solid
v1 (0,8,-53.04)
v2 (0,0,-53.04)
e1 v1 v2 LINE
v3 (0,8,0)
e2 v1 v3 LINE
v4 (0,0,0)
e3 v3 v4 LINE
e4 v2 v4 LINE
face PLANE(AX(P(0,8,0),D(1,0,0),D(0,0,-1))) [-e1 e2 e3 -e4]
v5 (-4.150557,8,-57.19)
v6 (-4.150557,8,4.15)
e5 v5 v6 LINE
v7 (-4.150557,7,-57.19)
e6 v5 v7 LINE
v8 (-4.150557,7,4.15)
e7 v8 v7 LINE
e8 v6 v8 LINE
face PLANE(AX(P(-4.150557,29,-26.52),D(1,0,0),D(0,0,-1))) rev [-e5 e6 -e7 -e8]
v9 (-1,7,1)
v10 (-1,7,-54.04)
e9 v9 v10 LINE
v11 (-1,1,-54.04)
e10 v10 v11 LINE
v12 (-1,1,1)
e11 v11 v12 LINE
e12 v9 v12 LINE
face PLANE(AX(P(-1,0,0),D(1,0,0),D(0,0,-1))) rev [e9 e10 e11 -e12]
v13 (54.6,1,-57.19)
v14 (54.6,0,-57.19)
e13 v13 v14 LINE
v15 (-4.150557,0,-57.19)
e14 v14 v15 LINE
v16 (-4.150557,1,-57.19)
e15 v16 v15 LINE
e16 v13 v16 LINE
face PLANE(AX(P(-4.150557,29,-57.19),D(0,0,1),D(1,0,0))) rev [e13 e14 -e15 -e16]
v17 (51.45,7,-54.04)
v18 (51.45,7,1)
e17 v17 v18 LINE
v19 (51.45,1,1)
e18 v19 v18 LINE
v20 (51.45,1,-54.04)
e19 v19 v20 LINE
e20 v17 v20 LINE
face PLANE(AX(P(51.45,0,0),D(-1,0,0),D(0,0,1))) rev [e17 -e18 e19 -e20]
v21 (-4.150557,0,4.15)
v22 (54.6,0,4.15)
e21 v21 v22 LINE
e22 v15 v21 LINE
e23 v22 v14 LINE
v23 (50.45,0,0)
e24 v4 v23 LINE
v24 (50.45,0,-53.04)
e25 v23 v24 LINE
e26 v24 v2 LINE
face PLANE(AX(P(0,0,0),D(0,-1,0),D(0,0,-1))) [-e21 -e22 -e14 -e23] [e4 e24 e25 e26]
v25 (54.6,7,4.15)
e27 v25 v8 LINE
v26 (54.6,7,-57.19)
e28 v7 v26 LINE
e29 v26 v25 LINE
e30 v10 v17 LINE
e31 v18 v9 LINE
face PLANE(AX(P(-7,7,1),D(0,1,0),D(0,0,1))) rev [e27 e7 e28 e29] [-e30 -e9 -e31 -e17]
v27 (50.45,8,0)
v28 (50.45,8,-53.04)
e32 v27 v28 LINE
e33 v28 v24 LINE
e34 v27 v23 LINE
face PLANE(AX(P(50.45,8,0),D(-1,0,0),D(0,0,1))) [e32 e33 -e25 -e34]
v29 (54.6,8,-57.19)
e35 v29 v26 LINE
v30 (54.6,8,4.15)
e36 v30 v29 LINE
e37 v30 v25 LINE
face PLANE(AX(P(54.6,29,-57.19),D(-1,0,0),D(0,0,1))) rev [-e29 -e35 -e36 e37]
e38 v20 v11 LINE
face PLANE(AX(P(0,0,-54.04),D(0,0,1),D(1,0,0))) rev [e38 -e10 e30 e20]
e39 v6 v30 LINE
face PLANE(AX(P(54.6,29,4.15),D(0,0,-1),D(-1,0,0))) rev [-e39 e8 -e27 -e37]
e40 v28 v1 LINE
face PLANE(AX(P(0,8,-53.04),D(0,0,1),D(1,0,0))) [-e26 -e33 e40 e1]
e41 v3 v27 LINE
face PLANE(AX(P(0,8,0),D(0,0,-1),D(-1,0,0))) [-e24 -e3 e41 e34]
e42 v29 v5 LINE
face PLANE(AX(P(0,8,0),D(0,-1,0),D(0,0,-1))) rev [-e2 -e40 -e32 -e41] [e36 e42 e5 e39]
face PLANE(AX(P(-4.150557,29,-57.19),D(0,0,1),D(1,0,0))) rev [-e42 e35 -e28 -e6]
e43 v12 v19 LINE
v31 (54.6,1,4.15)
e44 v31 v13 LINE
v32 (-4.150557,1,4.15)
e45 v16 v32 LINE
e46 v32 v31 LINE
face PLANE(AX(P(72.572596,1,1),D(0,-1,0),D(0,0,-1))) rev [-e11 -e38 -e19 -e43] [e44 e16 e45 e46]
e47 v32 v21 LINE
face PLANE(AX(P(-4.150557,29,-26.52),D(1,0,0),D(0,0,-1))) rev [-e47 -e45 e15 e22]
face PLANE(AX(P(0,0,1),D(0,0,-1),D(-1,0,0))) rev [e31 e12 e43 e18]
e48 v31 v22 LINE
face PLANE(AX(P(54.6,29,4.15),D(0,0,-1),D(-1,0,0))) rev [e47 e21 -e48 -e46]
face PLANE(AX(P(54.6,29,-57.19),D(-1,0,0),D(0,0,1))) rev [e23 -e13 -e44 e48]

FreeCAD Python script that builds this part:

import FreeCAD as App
import Part
import Sketcher
from FreeCAD import Vector
Q = App.Units.Quantity


def add_polygon(sketch, points):
    """Adds a closed chain of lines whose ends are joined by coincident constraints."""
    first, n = sketch.GeometryCount, len(points)
    for a, b in zip(points, points[1:] + points[:1]):
        sketch.addGeometry(Part.LineSegment(App.Vector(*a, 0), App.Vector(*b, 0)), False)
    for i in range(n):
        sketch.addConstraint(Sketcher.Constraint("Coincident", first + i, 2, first + (i + 1) % n, 1))

doc = App.newDocument("Part")
params = doc.addObject("Spreadsheet::Sheet", "Params")
for row, (alias, value) in enumerate([
    ("sketch1_width", "64.45 mm"),
    ("sketch1_height", "67.04 mm"),
    ("pad1_length", "8 mm"),
    ("sketch2_height", "6 mm"),
    ("pocket1_length", "6 mm"),
    ("sketch3_width", "6 mm"),
    ("pocket2_length", "6 mm"),
    ("sketch4_height", "6 mm"),
    ("pocket3_length", "6 mm"),
    ("sketch5_width", "6 mm"),
    ("pocket4_length", "6 mm"),
    ("sketch6_width", "64.45 mm"),
    ("sketch6_height", "67.04 mm"),
    ("sketch6_height2", "61.34 mm"),
], start=1):
    params.set(f"A{row}", alias)
    params.set(f"B{row}", "=" + value)
    params.setAlias(f"B{row}", alias)

body = doc.addObject("PartDesign::Body", "Body")

# Sketch on XZ plane
sketch1 = body.newObject("Sketcher::SketchObject", "Sketch")
sketch1.AttachmentSupport = (doc.getObject("XZ_Plane"), [""])
sketch1.MapMode = "FlatFace"
add_polygon(sketch1, [(57, -60), (-7, -60), (-7, 7), (57, 7)])  # lines 0-3
add_polygon(sketch1, [(0, 0), (0, -53), (50, -53), (50, 0)])  # lines 4-7
sketch1.addConstraint([
    Sketcher.Constraint("Horizontal", 0),
    Sketcher.Constraint("Vertical", 1),
    Sketcher.Constraint("Horizontal", 2),
    Sketcher.Constraint("Vertical", 3),
    Sketcher.Constraint("Vertical", 4),
    Sketcher.Constraint("Horizontal", 5),
    Sketcher.Constraint("Vertical", 6),
    Sketcher.Constraint("Horizontal", 7),
    Sketcher.Constraint("Coincident", 7, 2, -1, 1),
    Sketcher.Constraint("DistanceX", 0, 2, -1, 1, Q("7 mm")),
    Sketcher.Constraint("DistanceY", -1, 1, 1, 2, Q("7 mm")),
    Sketcher.Constraint("DistanceY", 0, 2, 4, 2, Q("7 mm")),
    Sketcher.Constraint("DistanceX", 5, 2, 3, 2, Q("7 mm")),
    Sketcher.Constraint("DistanceX", 0, 2, 0, 1, Q("64.45 mm")),
    Sketcher.Constraint("DistanceY", 1, 1, 1, 2, Q("67.04 mm")),
])
sketch1.setExpression("Constraints[21]", "Params.sketch1_width")
sketch1.setExpression("Constraints[22]", "Params.sketch1_height")
pad1 = body.newObject("PartDesign::Pad", "Pad")
pad1.Profile = sketch1
pad1.setExpression("Length", "Params.pad1_length")
pad1.Reversed = True

# Sketch on XY plane
sketch2 = body.newObject("Sketcher::SketchObject", "Sketch001")
sketch2.AttachmentSupport = (doc.getObject("XY_Plane"), [""])
sketch2.MapMode = "FlatFace"
sketch2.AttachmentOffset = App.Placement(Vector(0, 0, 7), App.Rotation())
add_polygon(sketch2, [(73, 7), (-15, 7), (-15, 1), (73, 1)])  # lines 0-3
sketch2.addConstraint([
    Sketcher.Constraint("Horizontal", 0),
    Sketcher.Constraint("Vertical", 1),
    Sketcher.Constraint("Horizontal", 2),
    Sketcher.Constraint("Vertical", 3),
    Sketcher.Constraint("DistanceY", 1, 2, 1, 1, Q("6 mm")),
    Sketcher.Constraint("DistanceY", -1, 1, 0, 2, Q("7 mm")),
    Sketcher.Constraint("DistanceX", 0, 2, 0, 1, Q("87.655675 mm")),
    Sketcher.Constraint("DistanceX", 0, 2, -1, 1, Q("15.083079 mm")),
])
sketch2.setExpression("Constraints[8]", "Params.sketch2_height")
pocket1 = body.newObject("PartDesign::Pocket", "Pocket")
pocket1.Profile = sketch2
pocket1.setExpression("Length", "Params.pocket1_length")

# Sketch on YZ plane
sketch3 = body.newObject("Sketcher::SketchObject", "Sketch002")
sketch3.AttachmentSupport = (doc.getObject("YZ_Plane"), [""])
sketch3.MapMode = "FlatFace"
sketch3.AttachmentOffset = App.Placement(Vector(0, 0, -7), App.Rotation())
add_polygon(sketch3, [(7, -62), (1, -62), (1, 11), (7, 11)])  # lines 0-3
sketch3.addConstraint([
    Sketcher.Constraint("Horizontal", 0),
    Sketcher.Constraint("Vertical", 1),
    Sketcher.Constraint("Horizontal", 2),
    Sketcher.Constraint("Vertical", 3),
    Sketcher.Constraint("DistanceX", 0, 2, 0, 1, Q("6 mm")),
    Sketcher.Constraint("DistanceX", -1, 1, 0, 2, Q("1 mm")),
    Sketcher.Constraint("DistanceY", 1, 1, 1, 2, Q("73.602599 mm")),
    Sketcher.Constraint("DistanceY", 0, 2, -1, 1, Q("62.487898 mm")),
])
sketch3.setExpression("Constraints[8]", "Params.sketch3_width")
pocket2 = body.newObject("PartDesign::Pocket", "Pocket001")
pocket2.Profile = sketch3
pocket2.setExpression("Length", "Params.pocket2_length")
pocket2.Reversed = True

# Sketch on XY plane
sketch4 = body.newObject("Sketcher::SketchObject", "Sketch003")
sketch4.AttachmentSupport = (doc.getObject("XY_Plane"), [""])
sketch4.MapMode = "FlatFace"
sketch4.AttachmentOffset = App.Placement(Vector(0, 0, -60.04), App.Rotation())
add_polygon(sketch4, [(64, 7), (64, 1), (-12, 1), (-12, 7)])  # lines 0-3
sketch4.addConstraint([
    Sketcher.Constraint("Vertical", 0),
    Sketcher.Constraint("Horizontal", 1),
    Sketcher.Constraint("Vertical", 2),
    Sketcher.Constraint("Horizontal", 3),
    Sketcher.Constraint("DistanceY", 0, 2, 0, 1, Q("6 mm")),
    Sketcher.Constraint("DistanceY", -1, 1, 0, 2, Q("1 mm")),
    Sketcher.Constraint("DistanceX", 1, 2, 1, 1, Q("75.527988 mm")),
    Sketcher.Constraint("DistanceX", -1, 1, 0, 2, Q("63.689958 mm")),
])
sketch4.setExpression("Constraints[8]", "Params.sketch4_height")
pocket3 = body.newObject("PartDesign::Pocket", "Pocket002")
pocket3.Profile = sketch4
pocket3.setExpression("Length", "Params.pocket3_length")
pocket3.Reversed = True

# Sketch on YZ plane
sketch5 = body.newObject("Sketcher::SketchObject", "Sketch004")
sketch5.AttachmentSupport = (doc.getObject("YZ_Plane"), [""])
sketch5.MapMode = "FlatFace"
sketch5.AttachmentOffset = App.Placement(Vector(0, 0, 57.45), App.Rotation())
add_polygon(sketch5, [(7, -62), (7, 9), (1, 9), (1, -62)])  # lines 0-3
sketch5.addConstraint([
    Sketcher.Constraint("Vertical", 0),
    Sketcher.Constraint("Horizontal", 1),
    Sketcher.Constraint("Vertical", 2),
    Sketcher.Constraint("Horizontal", 3),
    Sketcher.Constraint("DistanceX", 1, 2, 1, 1, Q("6 mm")),
    Sketcher.Constraint("DistanceX", -1, 1, 0, 2, Q("7 mm")),
    Sketcher.Constraint("DistanceY", 0, 1, 0, 2, Q("70.82639 mm")),
    Sketcher.Constraint("DistanceY", -1, 1, 0, 2, Q("8.754047 mm")),
])
sketch5.setExpression("Constraints[8]", "Params.sketch5_width")
pocket4 = body.newObject("PartDesign::Pocket", "Pocket003")
pocket4.Profile = sketch5
pocket4.setExpression("Length", "Params.pocket4_length")

# Sketch on XZ plane
sketch6 = body.newObject("Sketcher::SketchObject", "Sketch005")
sketch6.AttachmentSupport = (doc.getObject("XZ_Plane"), [""])
sketch6.MapMode = "FlatFace"
sketch6.AttachmentOffset = App.Placement(Vector(0, 0, -8), App.Rotation())
add_polygon(sketch6, [(-7, -60), (-7, 7), (57, 7), (57, -60)])  # lines 0-3
add_polygon(sketch6, [(-4, 4), (-4, -57), (55, -57), (55, 4)])  # lines 4-7
sketch6.addConstraint([
    Sketcher.Constraint("Vertical", 0),
    Sketcher.Constraint("Horizontal", 1),
    Sketcher.Constraint("Vertical", 2),
    Sketcher.Constraint("Horizontal", 3),
    Sketcher.Constraint("Vertical", 4),
    Sketcher.Constraint("Horizontal", 5),
    Sketcher.Constraint("Vertical", 6),
    Sketcher.Constraint("Horizontal", 7),
    Sketcher.Constraint("DistanceX", 0, 2, -1, 1, Q("7 mm")),
    Sketcher.Constraint("DistanceY", -1, 1, 0, 2, Q("7 mm")),
    Sketcher.Constraint("DistanceX", 1, 1, 1, 2, Q("64.45 mm")),
    Sketcher.Constraint("DistanceY", 0, 1, 0, 2, Q("67.04 mm")),
    Sketcher.Constraint("DistanceY", 4, 2, 4, 1, Q("61.34 mm")),
    Sketcher.Constraint("DistanceX", -1, 1, 5, 2, Q("54.6 mm")),
    Sketcher.Constraint("DistanceY", 4, 2, -1, 1, Q("57.19 mm")),
    Sketcher.Constraint("DistanceX", 5, 1, 5, 2, Q("58.750557 mm")),
])
sketch6.setExpression("Constraints[18]", "Params.sketch6_width")
sketch6.setExpression("Constraints[19]", "Params.sketch6_height")
sketch6.setExpression("Constraints[20]", "Params.sketch6_height2")
pocket5 = body.newObject("PartDesign::Pocket", "Pocket004")
pocket5.Profile = sketch6
pocket5.Type = "ThroughAll"
pocket5.Midplane = True

doc.recompute()
